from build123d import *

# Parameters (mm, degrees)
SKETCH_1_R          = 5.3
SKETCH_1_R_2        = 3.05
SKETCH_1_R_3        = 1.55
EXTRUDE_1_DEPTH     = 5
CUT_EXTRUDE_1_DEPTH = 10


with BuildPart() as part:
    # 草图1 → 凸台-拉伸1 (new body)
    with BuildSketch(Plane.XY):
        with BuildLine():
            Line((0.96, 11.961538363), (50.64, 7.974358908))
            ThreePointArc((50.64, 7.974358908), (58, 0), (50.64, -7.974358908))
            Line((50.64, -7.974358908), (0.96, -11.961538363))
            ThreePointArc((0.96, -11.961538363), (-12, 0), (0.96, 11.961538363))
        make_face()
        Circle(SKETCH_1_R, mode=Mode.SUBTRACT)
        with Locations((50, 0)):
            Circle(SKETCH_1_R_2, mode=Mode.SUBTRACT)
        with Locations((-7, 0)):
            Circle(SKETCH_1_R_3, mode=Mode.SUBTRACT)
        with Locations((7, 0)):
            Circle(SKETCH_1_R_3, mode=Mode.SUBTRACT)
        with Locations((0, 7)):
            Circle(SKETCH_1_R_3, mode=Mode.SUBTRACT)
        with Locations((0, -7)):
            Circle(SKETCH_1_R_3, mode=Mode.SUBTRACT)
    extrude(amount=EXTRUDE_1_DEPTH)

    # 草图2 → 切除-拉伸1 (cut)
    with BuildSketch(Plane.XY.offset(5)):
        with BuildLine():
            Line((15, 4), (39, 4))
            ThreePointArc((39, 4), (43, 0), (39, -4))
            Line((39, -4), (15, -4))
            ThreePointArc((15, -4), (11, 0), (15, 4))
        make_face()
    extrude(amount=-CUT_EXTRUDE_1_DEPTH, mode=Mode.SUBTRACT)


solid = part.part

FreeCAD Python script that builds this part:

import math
import FreeCAD as App
import Part
import Sketcher
from FreeCAD import Vector

doc = App.newDocument("Part")
body = doc.addObject("PartDesign::Body", "Body")

# Sketch on XY plane
sketch1 = doc.addObject("Sketcher::SketchObject", "Sketch")
body.addObject(sketch1)
sketch1.AttachmentSupport = (doc.XY_Plane, [""])
sketch1.MapMode = "FlatFace"
sketch1.addGeometry(Part.LineSegment(Vector(50.64, 7.974359, 0), Vector(0.96, 11.961538, 0)), False)
sketch1.addGeometry(Part.ArcOfCircle(Part.Circle(Vector(0, 0, 0), Vector(0, 0, 1), 12), math.radians(85.411434), math.radians(274.588566)), False)
sketch1.addGeometry(Part.LineSegment(Vector(0.96, -11.961538, 0), Vector(50.64, -7.974359, 0)), False)
sketch1.addGeometry(Part.ArcOfCircle(Part.Circle(Vector(50, 0, 0), Vector(0, 0, 1), 8), math.radians(-85.411434), math.radians(85.411434)), False)
sketch1.addGeometry(Part.Circle(Vector(0, -7, 0), Vector(0, 0, 1), 1.55), False)
sketch1.addGeometry(Part.Circle(Vector(50, 0, 0), Vector(0, 0, 1), 3.05), False)
sketch1.addGeometry(Part.Circle(Vector(7, 0, 0), Vector(0, 0, 1), 1.55), False)
sketch1.addGeometry(Part.Circle(Vector(0, 0, 0), Vector(0, 0, 1), 5.3), False)
sketch1.addGeometry(Part.Circle(Vector(-7, 0, 0), Vector(0, 0, 1), 1.55), False)
sketch1.addGeometry(Part.Circle(Vector(0, 7, 0), Vector(0, 0, 1), 1.55), False)
sketch1.addConstraint(Sketcher.Constraint("Tangent", 0, 2, 1, 1))
sketch1.addConstraint(Sketcher.Constraint("Tangent", 1, 2, 2, 1))
sketch1.addConstraint(Sketcher.Constraint("Tangent", 2, 2, 3, 1))
sketch1.addConstraint(Sketcher.Constraint("Tangent", 3, 2, 0, 1))
sketch1.addConstraint(Sketcher.Constraint("Coincident", 1, 3, -1, 1))
sketch1.addConstraint(Sketcher.Constraint("Coincident", 7, 3, -1, 1))
sketch1.addConstraint(Sketcher.Constraint("Coincident", 5, 3, 3, 3))
sketch1.addConstraint(Sketcher.Constraint("Equal", 4, 6))
sketch1.addConstraint(Sketcher.Constraint("Equal", 6, 8))
sketch1.addConstraint(Sketcher.Constraint("Equal", 8, 9))
sketch1.addConstraint(Sketcher.Constraint("Symmetric", 6, 3, 8, 3, -1, 1))
sketch1.addConstraint(Sketcher.Constraint("Symmetric", 4, 3, 9, 3, -1, 1))
sketch1.addConstraint(Sketcher.Constraint("PointOnObject", 3, 3, -1))
sketch1.addConstraint(Sketcher.Constraint("PointOnObject", 4, 3, -2))
sketch1.addConstraint(Sketcher.Constraint("PointOnObject", 6, 3, -1))
sketch1.addConstraint(Sketcher.Constraint("Radius", 1, 12.0))
sketch1.addConstraint(Sketcher.Constraint("Radius", 3, 8.0))
sketch1.addConstraint(Sketcher.Constraint("Diameter", 4, 3.1))
sketch1.addConstraint(Sketcher.Constraint("Diameter", 5, 6.1))
sketch1.addConstraint(Sketcher.Constraint("Diameter", 7, 10.6))
sketch1.addConstraint(Sketcher.Constraint("DistanceX", -1, 1, 3, 3, 50.0))
sketch1.addConstraint(Sketcher.Constraint("DistanceY", 4, 3, -1, 1, 7.0))
sketch1.addConstraint(Sketcher.Constraint("DistanceX", -1, 1, 6, 3, 7.0))
pad1 = doc.addObject("PartDesign::Pad", "Pad")
body.addObject(pad1)
pad1.Profile = sketch1
pad1.Length = 5

# Sketch on XY plane
sketch2 = doc.addObject("Sketcher::SketchObject", "Sketch001")
body.addObject(sketch2)
sketch2.AttachmentSupport = (doc.XY_Plane, [""])
sketch2.MapMode = "FlatFace"
sketch2.AttachmentOffset = App.Placement(Vector(0, 0, 5), App.Rotation())
sketch2.addGeometry(Part.LineSegment(Vector(39, 4, 0), Vector(15, 4, 0)), False)
sketch2.addGeometry(Part.ArcOfCircle(Part.Circle(Vector(15, 0, 0), Vector(0, 0, 1), 4), math.radians(90), math.radians(270)), False)
sketch2.addGeometry(Part.LineSegment(Vector(15, -4, 0), Vector(39, -4, 0)), False)
sketch2.addGeometry(Part.ArcOfCircle(Part.Circle(Vector(39, 0, 0), Vector(0, 0, 1), 4), math.radians(-90), math.radians(90)), False)
sketch2.addConstraint(Sketcher.Constraint("Tangent", 0, 2, 1, 1))
sketch2.addConstraint(Sketcher.Constraint("Tangent", 1, 2, 2, 1))
sketch2.addConstraint(Sketcher.Constraint("Tangent", 2, 2, 3, 1))
sketch2.addConstraint(Sketcher.Constraint("Tangent", 3, 2, 0, 1))
sketch2.addConstraint(Sketcher.Constraint("Horizontal", 0))
sketch2.addConstraint(Sketcher.Constraint("Horizontal", 2))
sketch2.addConstraint(Sketcher.Constraint("PointOnObject", 1, 3, -1))
sketch2.addConstraint(Sketcher.Constraint("Radius", 1, 4.0))
sketch2.addConstraint(Sketcher.Constraint("DistanceX", 0, 2, 0, 1, 24.0))
sketch2.addConstraint(Sketcher.Constraint("DistanceX", -1, 1, 1, 3, 15.0))
pocket1 = doc.addObject("PartDesign::Pocket", "Pocket")
body.addObject(pocket1)
pocket1.Profile = sketch2
pocket1.Length = 10

doc.recompute()
